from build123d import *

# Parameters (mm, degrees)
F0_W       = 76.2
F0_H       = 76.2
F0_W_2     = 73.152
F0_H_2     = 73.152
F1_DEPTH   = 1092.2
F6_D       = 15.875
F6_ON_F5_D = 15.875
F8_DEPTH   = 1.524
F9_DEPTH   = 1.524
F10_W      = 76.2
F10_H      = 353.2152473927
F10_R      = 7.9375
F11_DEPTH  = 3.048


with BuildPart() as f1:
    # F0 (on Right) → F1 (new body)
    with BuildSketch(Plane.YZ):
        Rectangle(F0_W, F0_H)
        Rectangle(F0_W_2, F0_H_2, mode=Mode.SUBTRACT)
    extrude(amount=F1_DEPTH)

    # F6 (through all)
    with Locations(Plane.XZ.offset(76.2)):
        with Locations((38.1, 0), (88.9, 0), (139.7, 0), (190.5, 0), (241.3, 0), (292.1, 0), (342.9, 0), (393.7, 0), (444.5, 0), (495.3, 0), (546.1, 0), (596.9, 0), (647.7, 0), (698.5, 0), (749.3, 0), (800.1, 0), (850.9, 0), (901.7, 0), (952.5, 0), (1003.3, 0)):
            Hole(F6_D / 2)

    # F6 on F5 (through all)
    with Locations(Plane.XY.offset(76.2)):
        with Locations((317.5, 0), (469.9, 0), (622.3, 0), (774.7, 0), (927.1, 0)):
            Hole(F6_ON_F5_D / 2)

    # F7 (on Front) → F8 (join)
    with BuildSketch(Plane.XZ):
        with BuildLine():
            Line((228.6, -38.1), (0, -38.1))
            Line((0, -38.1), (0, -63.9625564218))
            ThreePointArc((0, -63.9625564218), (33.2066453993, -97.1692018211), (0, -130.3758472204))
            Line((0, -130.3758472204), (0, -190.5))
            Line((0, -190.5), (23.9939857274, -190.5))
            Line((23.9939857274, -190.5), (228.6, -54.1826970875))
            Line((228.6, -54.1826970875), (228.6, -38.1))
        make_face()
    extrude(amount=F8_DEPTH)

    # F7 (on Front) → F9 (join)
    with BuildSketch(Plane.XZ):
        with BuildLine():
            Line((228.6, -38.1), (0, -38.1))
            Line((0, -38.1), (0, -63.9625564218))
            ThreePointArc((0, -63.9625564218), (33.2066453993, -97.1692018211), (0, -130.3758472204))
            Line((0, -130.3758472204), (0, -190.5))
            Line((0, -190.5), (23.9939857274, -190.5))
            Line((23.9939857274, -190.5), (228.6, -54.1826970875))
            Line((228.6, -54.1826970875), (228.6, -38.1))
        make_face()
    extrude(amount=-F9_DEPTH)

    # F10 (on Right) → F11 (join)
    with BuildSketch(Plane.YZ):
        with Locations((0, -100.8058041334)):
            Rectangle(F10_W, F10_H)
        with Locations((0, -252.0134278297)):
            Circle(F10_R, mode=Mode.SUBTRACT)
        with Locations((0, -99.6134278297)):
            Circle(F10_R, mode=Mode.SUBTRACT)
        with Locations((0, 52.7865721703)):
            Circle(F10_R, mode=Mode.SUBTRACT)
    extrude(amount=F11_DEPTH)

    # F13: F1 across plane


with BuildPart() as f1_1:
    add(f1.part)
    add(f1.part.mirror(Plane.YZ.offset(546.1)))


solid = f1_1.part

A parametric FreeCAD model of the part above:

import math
import FreeCAD as App
import Part
import Sketcher

V = App.Vector
Q = App.Units.Quantity


def add_polygon(sketch, points):
    """Adds a closed chain of lines whose ends are joined by coincident constraints."""
    first, n = sketch.GeometryCount, len(points)
    for a, b in zip(points, points[1:] + points[:1]):
        sketch.addGeometry(Part.LineSegment(App.Vector(*a, 0), App.Vector(*b, 0)), False)
    for i in range(n):
        sketch.addConstraint(Sketcher.Constraint("Coincident", first + i, 2, first + (i + 1) % n, 1))

doc = App.newDocument("Part")
params = doc.addObject("Spreadsheet::Sheet", "Params")
for row, (alias, value) in enumerate([
    ("sketch1_width", "3 in"),
    ("sketch1_width2", "2.88 in"),
    ("pad1_length", "43 in"),
    ("sketch2_diameter", "0.625 in"),
    ("hole_diameter", "0.625 in"),
    ("sketch3_diameter", "0.625 in"),
    ("hole2_diameter", "0.625 in"),
    ("sketch4_width", "9 in"),
    ("pad2_length", "0.06 in"),
    ("sketch5_width", "9 in"),
    ("pad3_length", "0.06 in"),
    ("sketch6_width", "3 in"),
    ("sketch6_diameter", "0.625 in"),
    ("pad4_length", "0.12 in"),
], start=1):
    params.set(f"A{row}", alias)
    params.set(f"B{row}", "=" + value)
    params.setAlias(f"B{row}", alias)

body = doc.addObject("PartDesign::Body", "Body")

sketch1 = body.newObject("Sketcher::SketchObject", "Sketch")
sketch1.AttachmentSupport = (doc.getObject("YZ_Plane"), [""])
sketch1.MapMode = "FlatFace"
add_polygon(sketch1, [(-38, 38), (-38, -38), (38, -38), (38, 38)])
add_polygon(sketch1, [(37, -37), (-37, -37), (-37, 37), (37, 37)])
sketch1.addConstraint(Sketcher.Constraint("Vertical", 0))
sketch1.addConstraint(Sketcher.Constraint("Horizontal", 1))
sketch1.addConstraint(Sketcher.Constraint("Vertical", 2))
sketch1.addConstraint(Sketcher.Constraint("Horizontal", 3))
sketch1.addConstraint(Sketcher.Constraint("Horizontal", 4))
sketch1.addConstraint(Sketcher.Constraint("Vertical", 5))
sketch1.addConstraint(Sketcher.Constraint("Horizontal", 6))
sketch1.addConstraint(Sketcher.Constraint("Vertical", 7))
sketch1.addConstraint(Sketcher.Constraint("Symmetric", 0, 2, 2, 2, -1, 1))
sketch1.addConstraint(Sketcher.Constraint("Symmetric", 4, 2, 6, 2, -1, 1))
sketch1.addConstraint(Sketcher.Constraint("Equal", 3, 0))
sketch1.addConstraint(Sketcher.Constraint("Equal", 6, 5))
sketch1.addConstraint(Sketcher.Constraint("DistanceX", 1, 1, 1, 2, Q("3 in")))
sketch1.addConstraint(Sketcher.Constraint("DistanceX", 4, 2, 4, 1, Q("2.88 in")))
sketch1.setExpression("Constraints[20]", "Params.sketch1_width")
sketch1.setExpression("Constraints[21]", "Params.sketch1_width2")
pad1 = body.newObject("PartDesign::Pad", "Pad")
pad1.Profile = sketch1
pad1.setExpression("Length", "Params.pad1_length")

sketch2 = body.newObject("Sketcher::SketchObject", "Sketch001")
sketch2.AttachmentSupport = (doc.getObject("XZ_Plane"), [""])
sketch2.MapMode = "FlatFace"
sketch2.AttachmentOffset = App.Placement(V(0, 0, 3 * 25.4), App.Rotation())
sketch2.addGeometry(Part.Circle(V(38, 0, 0), V(0, 0, 1), 8), False)
sketch2.addGeometry(Part.Circle(V(89, 0, 0), V(0, 0, 1), 8), False)
sketch2.addGeometry(Part.Circle(V(140, 0, 0), V(0, 0, 1), 8), False)
sketch2.addGeometry(Part.Circle(V(190, 0, 0), V(0, 0, 1), 8), False)
sketch2.addGeometry(Part.Circle(V(241, 0, 0), V(0, 0, 1), 8), False)
sketch2.addGeometry(Part.Circle(V(292, 0, 0), V(0, 0, 1), 8), False)
sketch2.addGeometry(Part.Circle(V(343, 0, 0), V(0, 0, 1), 8), False)
sketch2.addGeometry(Part.Circle(V(394, 0, 0), V(0, 0, 1), 8), False)
sketch2.addGeometry(Part.Circle(V(444, 0, 0), V(0, 0, 1), 8), False)
sketch2.addGeometry(Part.Circle(V(495, 0, 0), V(0, 0, 1), 8), False)
sketch2.addGeometry(Part.Circle(V(546, 0, 0), V(0, 0, 1), 8), False)
sketch2.addGeometry(Part.Circle(V(597, 0, 0), V(0, 0, 1), 8), False)
sketch2.addGeometry(Part.Circle(V(648, 0, 0), V(0, 0, 1), 8), False)
sketch2.addGeometry(Part.Circle(V(698, 0, 0), V(0, 0, 1), 8), False)
sketch2.addGeometry(Part.Circle(V(749, 0, 0), V(0, 0, 1), 8), False)
sketch2.addGeometry(Part.Circle(V(800, 0, 0), V(0, 0, 1), 8), False)
sketch2.addGeometry(Part.Circle(V(851, 0, 0), V(0, 0, 1), 8), False)
sketch2.addGeometry(Part.Circle(V(902, 0, 0), V(0, 0, 1), 8), False)
sketch2.addGeometry(Part.Circle(V(952, 0, 0), V(0, 0, 1), 8), False)
sketch2.addGeometry(Part.Circle(V(1003, 0, 0), V(0, 0, 1), 8), False)
sketch2.addConstraint(Sketcher.Constraint("Equal", 0, 1))
sketch2.addConstraint(Sketcher.Constraint("Equal", 1, 2))
sketch2.addConstraint(Sketcher.Constraint("Equal", 2, 3))
sketch2.addConstraint(Sketcher.Constraint("Equal", 3, 4))
sketch2.addConstraint(Sketcher.Constraint("Equal", 4, 5))
sketch2.addConstraint(Sketcher.Constraint("Equal", 5, 6))
sketch2.addConstraint(Sketcher.Constraint("Equal", 6, 7))
sketch2.addConstraint(Sketcher.Constraint("Equal", 7, 8))
sketch2.addConstraint(Sketcher.Constraint("Equal", 8, 9))
sketch2.addConstraint(Sketcher.Constraint("Equal", 9, 10))
sketch2.addConstraint(Sketcher.Constraint("Equal", 10, 11))
sketch2.addConstraint(Sketcher.Constraint("Equal", 11, 12))
sketch2.addConstraint(Sketcher.Constraint("Equal", 12, 13))
sketch2.addConstraint(Sketcher.Constraint("Equal", 13, 14))
sketch2.addConstraint(Sketcher.Constraint("Equal", 14, 15))
sketch2.addConstraint(Sketcher.Constraint("Equal", 15, 16))
sketch2.addConstraint(Sketcher.Constraint("Equal", 16, 17))
sketch2.addConstraint(Sketcher.Constraint("Equal", 17, 18))
sketch2.addConstraint(Sketcher.Constraint("Equal", 18, 19))
sketch2.addConstraint(Sketcher.Constraint("PointOnObject", 0, 3, -1))
sketch2.addConstraint(Sketcher.Constraint("PointOnObject", 1, 3, -1))
sketch2.addConstraint(Sketcher.Constraint("PointOnObject", 2, 3, -1))
sketch2.addConstraint(Sketcher.Constraint("PointOnObject", 3, 3, -1))
sketch2.addConstraint(Sketcher.Constraint("PointOnObject", 4, 3, -1))
sketch2.addConstraint(Sketcher.Constraint("PointOnObject", 5, 3, -1))
sketch2.addConstraint(Sketcher.Constraint("PointOnObject", 6, 3, -1))
sketch2.addConstraint(Sketcher.Constraint("PointOnObject", 7, 3, -1))
sketch2.addConstraint(Sketcher.Constraint("PointOnObject", 8, 3, -1))
sketch2.addConstraint(Sketcher.Constraint("PointOnObject", 9, 3, -1))
sketch2.addConstraint(Sketcher.Constraint("PointOnObject", 10, 3, -1))
sketch2.addConstraint(Sketcher.Constraint("PointOnObject", 11, 3, -1))
sketch2.addConstraint(Sketcher.Constraint("PointOnObject", 12, 3, -1))
sketch2.addConstraint(Sketcher.Constraint("PointOnObject", 13, 3, -1))
sketch2.addConstraint(Sketcher.Constraint("PointOnObject", 14, 3, -1))
sketch2.addConstraint(Sketcher.Constraint("PointOnObject", 15, 3, -1))
sketch2.addConstraint(Sketcher.Constraint("PointOnObject", 16, 3, -1))
sketch2.addConstraint(Sketcher.Constraint("PointOnObject", 17, 3, -1))
sketch2.addConstraint(Sketcher.Constraint("PointOnObject", 18, 3, -1))
sketch2.addConstraint(Sketcher.Constraint("PointOnObject", 19, 3, -1))
sketch2.addConstraint(Sketcher.Constraint("Diameter", 0, Q("0.625 in")))
sketch2.addConstraint(Sketcher.Constraint("DistanceX", 0, 3, 1, 3, Q("2 in")))
sketch2.addConstraint(Sketcher.Constraint("DistanceX", 1, 3, 2, 3, Q("2 in")))
sketch2.addConstraint(Sketcher.Constraint("DistanceX", 2, 3, 3, 3, Q("2 in")))
sketch2.addConstraint(Sketcher.Constraint("DistanceX", 3, 3, 4, 3, Q("2 in")))
sketch2.addConstraint(Sketcher.Constraint("DistanceX", 4, 3, 5, 3, Q("2 in")))
sketch2.addConstraint(Sketcher.Constraint("DistanceX", 5, 3, 6, 3, Q("2 in")))
sketch2.addConstraint(Sketcher.Constraint("DistanceX", 6, 3, 7, 3, Q("2 in")))
sketch2.addConstraint(Sketcher.Constraint("DistanceX", 7, 3, 8, 3, Q("2 in")))
sketch2.addConstraint(Sketcher.Constraint("DistanceX", 8, 3, 9, 3, Q("2 in")))
sketch2.addConstraint(Sketcher.Constraint("DistanceX", 9, 3, 10, 3, Q("2 in")))
sketch2.addConstraint(Sketcher.Constraint("DistanceX", 10, 3, 11, 3, Q("2 in")))
sketch2.addConstraint(Sketcher.Constraint("DistanceX", 11, 3, 12, 3, Q("2 in")))
sketch2.addConstraint(Sketcher.Constraint("DistanceX", 12, 3, 13, 3, Q("2 in")))
sketch2.addConstraint(Sketcher.Constraint("DistanceX", 13, 3, 14, 3, Q("2 in")))
sketch2.addConstraint(Sketcher.Constraint("DistanceX", 14, 3, 15, 3, Q("2 in")))
sketch2.addConstraint(Sketcher.Constraint("DistanceX", 15, 3, 16, 3, Q("2 in")))
sketch2.addConstraint(Sketcher.Constraint("DistanceX", 16, 3, 17, 3, Q("2 in")))
sketch2.addConstraint(Sketcher.Constraint("DistanceX", 17, 3, 18, 3, Q("2 in")))
sketch2.addConstraint(Sketcher.Constraint("DistanceX", 18, 3, 19, 3, Q("2 in")))
sketch2.addConstraint(Sketcher.Constraint("DistanceX", -1, 1, 0, 3, Q("1.5 in")))
sketch2.setExpression("Constraints[39]", "Params.sketch2_diameter")
doc.recompute()
hole = body.newObject("PartDesign::Hole", "Hole")
hole.Profile = sketch2
hole.ThreadType = "None"
hole.setExpression("Diameter", "Params.hole_diameter")
hole.DepthType = "ThroughAll"

sketch3 = body.newObject("Sketcher::SketchObject", "Sketch002")
sketch3.AttachmentSupport = (doc.getObject("XY_Plane"), [""])
sketch3.MapMode = "FlatFace"
sketch3.AttachmentOffset = App.Placement(V(0, 0, 3 * 25.4), App.Rotation())
sketch3.addGeometry(Part.Circle(V(318, 0, 0), V(0, 0, 1), 8), False)
sketch3.addGeometry(Part.Circle(V(470, 0, 0), V(0, 0, 1), 8), False)
sketch3.addGeometry(Part.Circle(V(622, 0, 0), V(0, 0, 1), 8), False)
sketch3.addGeometry(Part.Circle(V(775, 0, 0), V(0, 0, 1), 8), False)
sketch3.addGeometry(Part.Circle(V(927, 0, 0), V(0, 0, 1), 8), False)
sketch3.addConstraint(Sketcher.Constraint("Equal", 0, 1))
sketch3.addConstraint(Sketcher.Constraint("Equal", 1, 2))
sketch3.addConstraint(Sketcher.Constraint("Equal", 2, 3))
sketch3.addConstraint(Sketcher.Constraint("Equal", 3, 4))
sketch3.addConstraint(Sketcher.Constraint("PointOnObject", 0, 3, -1))
sketch3.addConstraint(Sketcher.Constraint("PointOnObject", 1, 3, -1))
sketch3.addConstraint(Sketcher.Constraint("PointOnObject", 2, 3, -1))
sketch3.addConstraint(Sketcher.Constraint("PointOnObject", 3, 3, -1))
sketch3.addConstraint(Sketcher.Constraint("PointOnObject", 4, 3, -1))
sketch3.addConstraint(Sketcher.Constraint("Diameter", 0, Q("0.625 in")))
sketch3.addConstraint(Sketcher.Constraint("DistanceX", 0, 3, 1, 3, Q("6 in")))
sketch3.addConstraint(Sketcher.Constraint("DistanceX", 1, 3, 2, 3, Q("6 in")))
sketch3.addConstraint(Sketcher.Constraint("DistanceX", 2, 3, 3, 3, Q("6 in")))
sketch3.addConstraint(Sketcher.Constraint("DistanceX", 3, 3, 4, 3, Q("6 in")))
sketch3.addConstraint(Sketcher.Constraint("DistanceX", -1, 1, 0, 3, Q("12.5 in")))
sketch3.setExpression("Constraints[9]", "Params.sketch3_diameter")
doc.recompute()
hole2 = body.newObject("PartDesign::Hole", "Hole001")
hole2.Profile = sketch3
hole2.ThreadType = "None"
hole2.setExpression("Diameter", "Params.hole2_diameter")
hole2.DepthType = "ThroughAll"

sketch4 = body.newObject("Sketcher::SketchObject", "Sketch003")
sketch4.AttachmentSupport = (doc.getObject("XZ_Plane"), [""])
sketch4.MapMode = "FlatFace"
sketch4.addGeometry(Part.LineSegment(V(229, -38, 0), V(0, -38, 0)), False)
sketch4.addGeometry(Part.LineSegment(V(0, -38, 0), V(0, -64, 0)), False)
sketch4.addGeometry(Part.ArcOfCircle(Part.Circle(V(0, -97, 0), V(0, 0, 1), 33), math.radians(-90), math.radians(90)), False)
sketch4.addGeometry(Part.LineSegment(V(0, -130, 0), V(0, -190, 0)), False)
sketch4.addGeometry(Part.LineSegment(V(0, -190, 0), V(24, -190, 0)), False)
sketch4.addGeometry(Part.LineSegment(V(24, -190, 0), V(229, -54, 0)), False)
sketch4.addGeometry(Part.LineSegment(V(229, -54, 0), V(229, -38, 0)), False)
sketch4.addConstraint(Sketcher.Constraint("Coincident", 0, 2, 1, 1))
sketch4.addConstraint(Sketcher.Constraint("Coincident", 1, 2, 2, 2))
sketch4.addConstraint(Sketcher.Constraint("Coincident", 2, 1, 3, 1))
sketch4.addConstraint(Sketcher.Constraint("Coincident", 3, 2, 4, 1))
sketch4.addConstraint(Sketcher.Constraint("Coincident", 4, 2, 5, 1))
sketch4.addConstraint(Sketcher.Constraint("Coincident", 5, 2, 6, 1))
sketch4.addConstraint(Sketcher.Constraint("Coincident", 6, 2, 0, 1))
sketch4.addConstraint(Sketcher.Constraint("Horizontal", 0))
sketch4.addConstraint(Sketcher.Constraint("Vertical", 1))
sketch4.addConstraint(Sketcher.Constraint("Vertical", 3))
sketch4.addConstraint(Sketcher.Constraint("Horizontal", 4))
sketch4.addConstraint(Sketcher.Constraint("Vertical", 6))
sketch4.addConstraint(Sketcher.Constraint("PointOnObject", 2, 3, -2))
sketch4.addConstraint(Sketcher.Constraint("PointOnObject", 0, 2, -2))
sketch4.addConstraint(Sketcher.Constraint("PointOnObject", 2, 1, -2))
sketch4.addConstraint(Sketcher.Constraint("DistanceX", 0, 2, 0, 1, Q("9 in")))
sketch4.addConstraint(Sketcher.Constraint("DistanceY", 3, 2, 0, 2, Q("6 in")))
sketch4.addConstraint(Sketcher.Constraint("DistanceY", 0, 2, -1, 1, Q("1.5 in")))
sketch4.addConstraint(Sketcher.Constraint("Radius", 2, 33.206645))
sketch4.addConstraint(Sketcher.Constraint("DistanceY", 2, 3, -1, 1, 97.169202))
sketch4.addConstraint(Sketcher.Constraint("Distance", 5, 245.85774))
sketch4.addConstraint(Sketcher.Constraint("DistanceX", 4, 1, 4, 2, 23.993986))
sketch4.setExpression("Constraints[15]", "Params.sketch4_width")
pad2 = body.newObject("PartDesign::Pad", "Pad001")
pad2.Profile = sketch4
pad2.setExpression("Length", "Params.pad2_length")

sketch5 = body.newObject("Sketcher::SketchObject", "Sketch004")
sketch5.AttachmentSupport = (doc.getObject("XZ_Plane"), [""])
sketch5.MapMode = "FlatFace"
sketch5.addGeometry(Part.LineSegment(V(229, -38, 0), V(0, -38, 0)), False)
sketch5.addGeometry(Part.LineSegment(V(0, -38, 0), V(0, -64, 0)), False)
sketch5.addGeometry(Part.ArcOfCircle(Part.Circle(V(0, -97, 0), V(0, 0, 1), 33), math.radians(-90), math.radians(90)), False)
sketch5.addGeometry(Part.LineSegment(V(0, -130, 0), V(0, -190, 0)), False)
sketch5.addGeometry(Part.LineSegment(V(0, -190, 0), V(24, -190, 0)), False)
sketch5.addGeometry(Part.LineSegment(V(24, -190, 0), V(229, -54, 0)), False)
sketch5.addGeometry(Part.LineSegment(V(229, -54, 0), V(229, -38, 0)), False)
sketch5.addConstraint(Sketcher.Constraint("Coincident", 0, 2, 1, 1))
sketch5.addConstraint(Sketcher.Constraint("Coincident", 1, 2, 2, 2))
sketch5.addConstraint(Sketcher.Constraint("Coincident", 2, 1, 3, 1))
sketch5.addConstraint(Sketcher.Constraint("Coincident", 3, 2, 4, 1))
sketch5.addConstraint(Sketcher.Constraint("Coincident", 4, 2, 5, 1))
sketch5.addConstraint(Sketcher.Constraint("Coincident", 5, 2, 6, 1))
sketch5.addConstraint(Sketcher.Constraint("Coincident", 6, 2, 0, 1))
sketch5.addConstraint(Sketcher.Constraint("Horizontal", 0))
sketch5.addConstraint(Sketcher.Constraint("Vertical", 1))
sketch5.addConstraint(Sketcher.Constraint("Vertical", 3))
sketch5.addConstraint(Sketcher.Constraint("Horizontal", 4))
sketch5.addConstraint(Sketcher.Constraint("Vertical", 6))
sketch5.addConstraint(Sketcher.Constraint("PointOnObject", 2, 3, -2))
sketch5.addConstraint(Sketcher.Constraint("PointOnObject", 0, 2, -2))
sketch5.addConstraint(Sketcher.Constraint("PointOnObject", 2, 1, -2))
sketch5.addConstraint(Sketcher.Constraint("DistanceX", 0, 2, 0, 1, Q("9 in")))
sketch5.addConstraint(Sketcher.Constraint("DistanceY", 3, 2, 0, 2, Q("6 in")))
sketch5.addConstraint(Sketcher.Constraint("DistanceY", 0, 2, -1, 1, Q("1.5 in")))
sketch5.addConstraint(Sketcher.Constraint("Radius", 2, 33.206645))
sketch5.addConstraint(Sketcher.Constraint("DistanceY", 2, 3, -1, 1, 97.169202))
sketch5.addConstraint(Sketcher.Constraint("Distance", 5, 245.85774))
sketch5.addConstraint(Sketcher.Constraint("DistanceX", 4, 1, 4, 2, 23.993986))
sketch5.setExpression("Constraints[15]", "Params.sketch5_width")
pad3 = body.newObject("PartDesign::Pad", "Pad002")
pad3.Profile = sketch5
pad3.setExpression("Length", "Params.pad3_length")
pad3.Reversed = True

sketch6 = body.newObject("Sketcher::SketchObject", "Sketch005")
sketch6.AttachmentSupport = (doc.getObject("YZ_Plane"), [""])
sketch6.MapMode = "FlatFace"
add_polygon(sketch6, [(-38, 76), (-38, -277), (38, -277), (38, 76)])
sketch6.addGeometry(Part.Circle(V(0, -252, 0), V(0, 0, 1), 8), False)
sketch6.addGeometry(Part.Circle(V(0, -100, 0), V(0, 0, 1), 8), False)
sketch6.addGeometry(Part.Circle(V(0, 53, 0), V(0, 0, 1), 8), False)
sketch6.addConstraint(Sketcher.Constraint("Vertical", 0))
sketch6.addConstraint(Sketcher.Constraint("Horizontal", 1))
sketch6.addConstraint(Sketcher.Constraint("Vertical", 2))
sketch6.addConstraint(Sketcher.Constraint("Horizontal", 3))
sketch6.addConstraint(Sketcher.Constraint("Equal", 4, 5))
sketch6.addConstraint(Sketcher.Constraint("Equal", 5, 6))
sketch6.addConstraint(Sketcher.Constraint("PointOnObject", 4, 3, -2))
sketch6.addConstraint(Sketcher.Constraint("PointOnObject", 5, 3, -2))
sketch6.addConstraint(Sketcher.Constraint("PointOnObject", 6, 3, -2))
sketch6.addConstraint(Sketcher.Constraint("DistanceX", 1, 1, 1, 2, Q("3 in")))
sketch6.addConstraint(Sketcher.Constraint("Diameter", 4, Q("0.625 in")))
sketch6.addConstraint(Sketcher.Constraint("DistanceY", 4, 3, 5, 3, Q("6 in")))
sketch6.addConstraint(Sketcher.Constraint("DistanceY", 5, 3, 6, 3, Q("6 in")))
sketch6.addConstraint(Sketcher.Constraint("DistanceY", 0, 2, 4, 3, Q("1 in")))
sketch6.addConstraint(Sketcher.Constraint("DistanceX", 0, 2, -1, 1, Q("1.5 in")))
sketch6.addConstraint(Sketcher.Constraint("DistanceY", 0, 2, 0, 1, 353.215247))
sketch6.addConstraint(Sketcher.Constraint("DistanceY", -1, 1, 2, 2, 75.80182))
sketch6.setExpression("Constraints[13]", "Params.sketch6_width")
sketch6.setExpression("Constraints[14]", "Params.sketch6_diameter")
pad4 = body.newObject("PartDesign::Pad", "Pad003")
pad4.Profile = sketch6
pad4.setExpression("Length", "Params.pad4_length")
body2 = doc.addObject("PartDesign::Body", "Body001")
doc.recompute()

body2.BaseFeature = body
doc.recompute()

mirroring = doc.addObject("Part::Mirroring", "Mirroring")
mirroring.Source = body
mirroring.Base = V(546.1, 0, 0)
mirroring.Normal = V(1, 0, 0)
body3 = doc.addObject("PartDesign::Body", "Body002")
body3.BaseFeature = mirroring
boolean = body2.newObject("PartDesign::Boolean", "Boolean")
boolean.Type = "Fuse"
boolean.addObjects([body3])
doc.recompute()
mirroring.Visibility = False

doc.recompute()
